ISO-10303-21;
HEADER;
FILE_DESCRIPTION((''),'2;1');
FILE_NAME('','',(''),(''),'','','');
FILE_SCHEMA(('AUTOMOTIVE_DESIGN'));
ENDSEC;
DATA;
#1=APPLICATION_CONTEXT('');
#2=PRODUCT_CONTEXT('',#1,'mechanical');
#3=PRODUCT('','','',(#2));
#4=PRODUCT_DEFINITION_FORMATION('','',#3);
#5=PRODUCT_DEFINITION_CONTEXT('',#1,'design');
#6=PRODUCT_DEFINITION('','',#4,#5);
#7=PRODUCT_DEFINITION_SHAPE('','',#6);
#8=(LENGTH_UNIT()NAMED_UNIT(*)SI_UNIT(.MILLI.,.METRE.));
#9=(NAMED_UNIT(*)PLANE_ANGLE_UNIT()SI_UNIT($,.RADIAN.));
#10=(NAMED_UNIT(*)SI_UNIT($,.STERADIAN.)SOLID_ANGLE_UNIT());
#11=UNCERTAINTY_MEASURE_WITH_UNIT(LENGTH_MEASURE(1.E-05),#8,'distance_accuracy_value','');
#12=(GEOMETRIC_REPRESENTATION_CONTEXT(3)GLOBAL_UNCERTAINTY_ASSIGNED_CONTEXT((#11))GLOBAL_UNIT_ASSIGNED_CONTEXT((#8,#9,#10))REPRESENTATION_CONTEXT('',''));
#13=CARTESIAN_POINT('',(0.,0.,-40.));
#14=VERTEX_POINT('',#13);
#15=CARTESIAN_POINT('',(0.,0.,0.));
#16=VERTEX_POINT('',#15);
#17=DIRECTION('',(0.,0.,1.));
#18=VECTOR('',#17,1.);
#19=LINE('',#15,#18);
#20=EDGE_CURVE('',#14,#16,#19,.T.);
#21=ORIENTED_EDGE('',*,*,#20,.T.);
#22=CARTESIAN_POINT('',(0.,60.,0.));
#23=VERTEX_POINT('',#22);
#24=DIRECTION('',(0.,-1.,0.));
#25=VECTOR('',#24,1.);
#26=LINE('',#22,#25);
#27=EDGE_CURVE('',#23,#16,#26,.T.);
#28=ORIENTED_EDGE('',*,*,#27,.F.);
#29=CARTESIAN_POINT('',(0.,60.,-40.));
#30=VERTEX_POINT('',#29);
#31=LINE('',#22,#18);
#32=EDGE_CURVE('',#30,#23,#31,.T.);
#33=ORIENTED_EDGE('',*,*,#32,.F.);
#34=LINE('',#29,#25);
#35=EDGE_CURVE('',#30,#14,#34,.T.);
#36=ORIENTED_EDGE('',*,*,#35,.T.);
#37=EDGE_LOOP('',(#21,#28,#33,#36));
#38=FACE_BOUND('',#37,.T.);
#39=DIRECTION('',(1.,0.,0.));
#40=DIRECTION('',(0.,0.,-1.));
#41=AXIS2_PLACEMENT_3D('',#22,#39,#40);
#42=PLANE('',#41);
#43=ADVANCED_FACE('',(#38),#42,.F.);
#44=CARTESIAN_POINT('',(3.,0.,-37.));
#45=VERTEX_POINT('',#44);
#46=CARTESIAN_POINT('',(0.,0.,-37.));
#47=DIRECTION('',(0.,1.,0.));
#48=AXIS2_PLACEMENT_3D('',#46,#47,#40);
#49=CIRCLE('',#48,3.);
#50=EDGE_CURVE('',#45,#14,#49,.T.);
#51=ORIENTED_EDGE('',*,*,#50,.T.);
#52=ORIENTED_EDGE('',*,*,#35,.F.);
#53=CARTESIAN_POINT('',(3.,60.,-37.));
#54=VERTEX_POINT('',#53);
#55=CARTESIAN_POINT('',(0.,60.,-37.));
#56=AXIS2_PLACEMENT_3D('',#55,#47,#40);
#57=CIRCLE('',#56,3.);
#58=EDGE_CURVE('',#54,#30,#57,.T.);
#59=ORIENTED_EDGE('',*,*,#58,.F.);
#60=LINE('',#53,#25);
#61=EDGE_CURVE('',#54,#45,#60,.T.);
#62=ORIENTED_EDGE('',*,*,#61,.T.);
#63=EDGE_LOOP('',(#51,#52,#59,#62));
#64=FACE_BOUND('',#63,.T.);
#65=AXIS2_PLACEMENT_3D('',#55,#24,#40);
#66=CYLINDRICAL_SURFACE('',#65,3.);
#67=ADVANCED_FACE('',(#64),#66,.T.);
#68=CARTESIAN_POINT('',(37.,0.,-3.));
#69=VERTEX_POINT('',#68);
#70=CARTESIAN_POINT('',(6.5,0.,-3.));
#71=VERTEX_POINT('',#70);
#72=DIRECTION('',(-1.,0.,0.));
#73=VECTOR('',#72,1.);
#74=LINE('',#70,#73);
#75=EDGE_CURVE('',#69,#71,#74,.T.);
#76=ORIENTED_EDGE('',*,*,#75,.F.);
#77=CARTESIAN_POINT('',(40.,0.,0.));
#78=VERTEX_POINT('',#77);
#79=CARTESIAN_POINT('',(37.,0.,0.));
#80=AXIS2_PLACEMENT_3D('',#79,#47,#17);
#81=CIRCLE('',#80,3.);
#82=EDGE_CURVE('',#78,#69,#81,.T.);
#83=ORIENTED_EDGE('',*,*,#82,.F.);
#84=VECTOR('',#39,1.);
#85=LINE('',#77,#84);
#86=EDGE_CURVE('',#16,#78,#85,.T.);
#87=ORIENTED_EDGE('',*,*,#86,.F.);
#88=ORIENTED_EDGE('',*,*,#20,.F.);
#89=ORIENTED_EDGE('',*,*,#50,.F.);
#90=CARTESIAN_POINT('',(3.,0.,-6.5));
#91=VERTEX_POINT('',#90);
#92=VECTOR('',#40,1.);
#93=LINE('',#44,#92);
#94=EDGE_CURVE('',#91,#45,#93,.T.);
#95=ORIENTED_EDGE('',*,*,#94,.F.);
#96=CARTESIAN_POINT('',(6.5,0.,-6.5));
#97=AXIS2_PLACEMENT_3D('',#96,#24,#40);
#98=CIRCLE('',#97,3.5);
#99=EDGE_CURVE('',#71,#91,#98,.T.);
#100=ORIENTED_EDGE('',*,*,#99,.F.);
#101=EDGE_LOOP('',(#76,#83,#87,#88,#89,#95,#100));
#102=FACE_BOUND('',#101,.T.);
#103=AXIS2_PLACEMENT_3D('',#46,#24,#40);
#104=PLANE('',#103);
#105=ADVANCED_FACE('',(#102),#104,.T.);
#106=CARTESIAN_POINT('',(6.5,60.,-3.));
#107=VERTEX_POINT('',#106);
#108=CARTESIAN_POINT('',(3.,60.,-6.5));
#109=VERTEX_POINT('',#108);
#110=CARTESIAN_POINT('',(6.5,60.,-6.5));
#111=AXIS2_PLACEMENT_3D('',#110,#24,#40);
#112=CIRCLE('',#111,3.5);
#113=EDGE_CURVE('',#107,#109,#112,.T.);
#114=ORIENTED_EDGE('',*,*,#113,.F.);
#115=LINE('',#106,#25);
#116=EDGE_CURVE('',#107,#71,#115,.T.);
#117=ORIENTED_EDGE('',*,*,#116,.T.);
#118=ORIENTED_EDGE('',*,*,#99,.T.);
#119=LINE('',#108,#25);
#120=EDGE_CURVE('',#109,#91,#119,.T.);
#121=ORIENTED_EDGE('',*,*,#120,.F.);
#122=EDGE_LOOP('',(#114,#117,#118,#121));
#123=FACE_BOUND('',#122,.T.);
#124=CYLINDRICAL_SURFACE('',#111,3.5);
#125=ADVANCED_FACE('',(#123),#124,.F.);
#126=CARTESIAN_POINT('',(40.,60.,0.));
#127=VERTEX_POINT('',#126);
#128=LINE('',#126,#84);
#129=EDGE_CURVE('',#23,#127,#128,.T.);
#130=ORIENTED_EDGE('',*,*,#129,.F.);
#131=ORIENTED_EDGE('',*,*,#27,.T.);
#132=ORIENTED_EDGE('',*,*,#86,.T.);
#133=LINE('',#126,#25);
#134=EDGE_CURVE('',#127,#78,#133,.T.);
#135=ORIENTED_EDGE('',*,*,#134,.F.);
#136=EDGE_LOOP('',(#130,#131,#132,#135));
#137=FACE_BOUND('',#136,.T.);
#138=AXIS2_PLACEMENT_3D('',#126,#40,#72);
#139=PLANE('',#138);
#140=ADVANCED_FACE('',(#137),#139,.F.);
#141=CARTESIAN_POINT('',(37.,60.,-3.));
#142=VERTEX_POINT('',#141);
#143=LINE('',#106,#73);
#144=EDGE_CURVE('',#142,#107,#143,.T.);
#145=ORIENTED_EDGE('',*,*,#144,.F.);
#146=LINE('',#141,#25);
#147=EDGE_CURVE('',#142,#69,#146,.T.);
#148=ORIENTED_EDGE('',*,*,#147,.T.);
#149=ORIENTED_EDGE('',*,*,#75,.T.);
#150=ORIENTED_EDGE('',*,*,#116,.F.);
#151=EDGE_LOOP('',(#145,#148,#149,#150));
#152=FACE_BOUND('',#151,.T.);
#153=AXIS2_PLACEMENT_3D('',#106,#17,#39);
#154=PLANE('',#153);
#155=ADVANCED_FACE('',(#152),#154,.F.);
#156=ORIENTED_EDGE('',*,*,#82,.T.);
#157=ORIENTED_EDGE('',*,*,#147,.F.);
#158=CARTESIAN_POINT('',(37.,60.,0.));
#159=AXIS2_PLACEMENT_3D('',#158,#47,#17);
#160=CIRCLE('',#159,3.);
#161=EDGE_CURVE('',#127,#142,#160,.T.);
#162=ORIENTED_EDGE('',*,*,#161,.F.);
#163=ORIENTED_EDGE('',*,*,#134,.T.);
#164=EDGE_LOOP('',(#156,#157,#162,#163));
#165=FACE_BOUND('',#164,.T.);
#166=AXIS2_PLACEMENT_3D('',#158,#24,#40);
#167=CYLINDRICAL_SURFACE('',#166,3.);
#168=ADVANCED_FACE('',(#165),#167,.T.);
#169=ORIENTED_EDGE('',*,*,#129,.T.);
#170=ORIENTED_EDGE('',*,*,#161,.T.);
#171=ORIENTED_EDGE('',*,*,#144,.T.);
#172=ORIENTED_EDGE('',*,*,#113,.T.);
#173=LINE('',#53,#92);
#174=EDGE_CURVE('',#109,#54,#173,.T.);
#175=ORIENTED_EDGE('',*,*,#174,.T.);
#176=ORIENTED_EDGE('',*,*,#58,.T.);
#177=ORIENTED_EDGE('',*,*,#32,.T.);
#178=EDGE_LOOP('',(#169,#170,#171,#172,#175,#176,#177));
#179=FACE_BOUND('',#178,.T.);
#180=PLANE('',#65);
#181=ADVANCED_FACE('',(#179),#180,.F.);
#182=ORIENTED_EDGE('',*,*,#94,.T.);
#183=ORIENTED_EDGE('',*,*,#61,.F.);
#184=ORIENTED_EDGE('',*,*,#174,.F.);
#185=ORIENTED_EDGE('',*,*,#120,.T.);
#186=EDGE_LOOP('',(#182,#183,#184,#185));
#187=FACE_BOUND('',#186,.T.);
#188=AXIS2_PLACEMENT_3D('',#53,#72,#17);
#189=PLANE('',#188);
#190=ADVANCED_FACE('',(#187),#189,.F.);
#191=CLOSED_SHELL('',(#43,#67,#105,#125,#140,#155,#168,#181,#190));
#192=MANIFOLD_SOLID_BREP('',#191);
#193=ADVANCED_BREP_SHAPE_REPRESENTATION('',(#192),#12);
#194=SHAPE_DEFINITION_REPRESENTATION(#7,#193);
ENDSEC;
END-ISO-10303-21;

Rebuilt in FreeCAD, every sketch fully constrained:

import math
import FreeCAD as App
import Part
import Sketcher
from FreeCAD import Vector
Q = App.Units.Quantity

doc = App.newDocument("Part")
body = doc.addObject("PartDesign::Body", "Body")

sketch1 = body.newObject("Sketcher::SketchObject", "Sketch")
sketch1.AttachmentSupport = (doc.getObject("XZ_Plane"), [""])
sketch1.MapMode = "FlatFace"
sketch1.addGeometry(Part.LineSegment(Vector(0, -40, 0), Vector(0, 0, 0)), False)
sketch1.addGeometry(Part.LineSegment(Vector(0, 0, 0), Vector(40, 0, 0)), False)
sketch1.addGeometry(Part.ArcOfCircle(Part.Circle(Vector(37, 0, 0), Vector(0, 0, 1), 3), math.radians(-90), math.radians(0)), False)
sketch1.addGeometry(Part.LineSegment(Vector(37, -3, 0), Vector(6.5, -3, 0)), False)
sketch1.addGeometry(Part.ArcOfCircle(Part.Circle(Vector(6.5, -6.5, 0), Vector(0, 0, 1), 3.5), math.radians(90), math.radians(180)), False)
sketch1.addGeometry(Part.LineSegment(Vector(3, -6.5, 0), Vector(3, -37, 0)), False)
sketch1.addGeometry(Part.ArcOfCircle(Part.Circle(Vector(0, -37, 0), Vector(0, 0, 1), 3), math.radians(-90), math.radians(0)), False)
sketch1.addConstraint(Sketcher.Constraint("Coincident", 0, 2, 1, 1))
sketch1.addConstraint(Sketcher.Constraint("Coincident", 1, 2, 2, 2))
sketch1.addConstraint(Sketcher.Constraint("Tangent", 2, 1, 3, 1))
sketch1.addConstraint(Sketcher.Constraint("Tangent", 3, 2, 4, 1))
sketch1.addConstraint(Sketcher.Constraint("Tangent", 4, 2, 5, 1))
sketch1.addConstraint(Sketcher.Constraint("Tangent", 5, 2, 6, 2))
sketch1.addConstraint(Sketcher.Constraint("Coincident", 6, 1, 0, 1))
sketch1.addConstraint(Sketcher.Constraint("Vertical", 0))
sketch1.addConstraint(Sketcher.Constraint("Horizontal", 1))
sketch1.addConstraint(Sketcher.Constraint("Horizontal", 3))
sketch1.addConstraint(Sketcher.Constraint("Vertical", 5))
sketch1.addConstraint(Sketcher.Constraint("Coincident", 0, 2, -1, 1))
sketch1.addConstraint(Sketcher.Constraint("Equal", 2, 6))
sketch1.addConstraint(Sketcher.Constraint("PointOnObject", 2, 3, -1))
sketch1.addConstraint(Sketcher.Constraint("PointOnObject", 6, 3, -2))
sketch1.addConstraint(Sketcher.Constraint("Equal", 1, 0))
sketch1.addConstraint(Sketcher.Constraint("Radius", 2, Q("3 mm")))
sketch1.addConstraint(Sketcher.Constraint("Radius", 4, Q("3.5 mm")))
sketch1.addConstraint(Sketcher.Constraint("DistanceX", 1, 1, 1, 2, Q("40 mm")))
pad1 = body.newObject("PartDesign::Pad", "Pad")
pad1.Profile = sketch1
pad1.Length = 60
pad1.Reversed = True

doc.recompute()
